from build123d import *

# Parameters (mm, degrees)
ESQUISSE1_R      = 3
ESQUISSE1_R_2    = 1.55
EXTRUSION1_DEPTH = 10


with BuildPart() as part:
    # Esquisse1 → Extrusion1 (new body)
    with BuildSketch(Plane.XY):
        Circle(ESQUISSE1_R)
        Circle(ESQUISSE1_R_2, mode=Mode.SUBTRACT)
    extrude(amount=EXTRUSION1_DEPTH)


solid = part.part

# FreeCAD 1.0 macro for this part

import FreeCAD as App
import Part
import Sketcher

V = App.Vector

doc = App.newDocument("Part")
body = doc.addObject("PartDesign::Body", "Body")

# Sketch on XY plane
sketch1 = body.newObject("Sketcher::SketchObject", "Sketch")
sketch1.AttachmentSupport = (doc.getObject("XY_Plane"), [""])
sketch1.MapMode = "FlatFace"
sketch1.addGeometry([
    Part.Circle(V(0, 0, 0), V(0, 0, 1), 3),
    Part.Circle(V(0, 0, 0), V(0, 0, 1), 1.6),
], False)
sketch1.addConstraint([
    Sketcher.Constraint("Coincident", 0, 3, -1, 1),
    Sketcher.Constraint("Coincident", 1, 3, -1, 1),
    Sketcher.Constraint("Diameter", 0, 6.0),
    Sketcher.Constraint("Diameter", 1, 3.1),
])
pad1 = body.newObject("PartDesign::Pad", "Pad")
pad1.Profile = sketch1
pad1.Length = 10

doc.recompute()
